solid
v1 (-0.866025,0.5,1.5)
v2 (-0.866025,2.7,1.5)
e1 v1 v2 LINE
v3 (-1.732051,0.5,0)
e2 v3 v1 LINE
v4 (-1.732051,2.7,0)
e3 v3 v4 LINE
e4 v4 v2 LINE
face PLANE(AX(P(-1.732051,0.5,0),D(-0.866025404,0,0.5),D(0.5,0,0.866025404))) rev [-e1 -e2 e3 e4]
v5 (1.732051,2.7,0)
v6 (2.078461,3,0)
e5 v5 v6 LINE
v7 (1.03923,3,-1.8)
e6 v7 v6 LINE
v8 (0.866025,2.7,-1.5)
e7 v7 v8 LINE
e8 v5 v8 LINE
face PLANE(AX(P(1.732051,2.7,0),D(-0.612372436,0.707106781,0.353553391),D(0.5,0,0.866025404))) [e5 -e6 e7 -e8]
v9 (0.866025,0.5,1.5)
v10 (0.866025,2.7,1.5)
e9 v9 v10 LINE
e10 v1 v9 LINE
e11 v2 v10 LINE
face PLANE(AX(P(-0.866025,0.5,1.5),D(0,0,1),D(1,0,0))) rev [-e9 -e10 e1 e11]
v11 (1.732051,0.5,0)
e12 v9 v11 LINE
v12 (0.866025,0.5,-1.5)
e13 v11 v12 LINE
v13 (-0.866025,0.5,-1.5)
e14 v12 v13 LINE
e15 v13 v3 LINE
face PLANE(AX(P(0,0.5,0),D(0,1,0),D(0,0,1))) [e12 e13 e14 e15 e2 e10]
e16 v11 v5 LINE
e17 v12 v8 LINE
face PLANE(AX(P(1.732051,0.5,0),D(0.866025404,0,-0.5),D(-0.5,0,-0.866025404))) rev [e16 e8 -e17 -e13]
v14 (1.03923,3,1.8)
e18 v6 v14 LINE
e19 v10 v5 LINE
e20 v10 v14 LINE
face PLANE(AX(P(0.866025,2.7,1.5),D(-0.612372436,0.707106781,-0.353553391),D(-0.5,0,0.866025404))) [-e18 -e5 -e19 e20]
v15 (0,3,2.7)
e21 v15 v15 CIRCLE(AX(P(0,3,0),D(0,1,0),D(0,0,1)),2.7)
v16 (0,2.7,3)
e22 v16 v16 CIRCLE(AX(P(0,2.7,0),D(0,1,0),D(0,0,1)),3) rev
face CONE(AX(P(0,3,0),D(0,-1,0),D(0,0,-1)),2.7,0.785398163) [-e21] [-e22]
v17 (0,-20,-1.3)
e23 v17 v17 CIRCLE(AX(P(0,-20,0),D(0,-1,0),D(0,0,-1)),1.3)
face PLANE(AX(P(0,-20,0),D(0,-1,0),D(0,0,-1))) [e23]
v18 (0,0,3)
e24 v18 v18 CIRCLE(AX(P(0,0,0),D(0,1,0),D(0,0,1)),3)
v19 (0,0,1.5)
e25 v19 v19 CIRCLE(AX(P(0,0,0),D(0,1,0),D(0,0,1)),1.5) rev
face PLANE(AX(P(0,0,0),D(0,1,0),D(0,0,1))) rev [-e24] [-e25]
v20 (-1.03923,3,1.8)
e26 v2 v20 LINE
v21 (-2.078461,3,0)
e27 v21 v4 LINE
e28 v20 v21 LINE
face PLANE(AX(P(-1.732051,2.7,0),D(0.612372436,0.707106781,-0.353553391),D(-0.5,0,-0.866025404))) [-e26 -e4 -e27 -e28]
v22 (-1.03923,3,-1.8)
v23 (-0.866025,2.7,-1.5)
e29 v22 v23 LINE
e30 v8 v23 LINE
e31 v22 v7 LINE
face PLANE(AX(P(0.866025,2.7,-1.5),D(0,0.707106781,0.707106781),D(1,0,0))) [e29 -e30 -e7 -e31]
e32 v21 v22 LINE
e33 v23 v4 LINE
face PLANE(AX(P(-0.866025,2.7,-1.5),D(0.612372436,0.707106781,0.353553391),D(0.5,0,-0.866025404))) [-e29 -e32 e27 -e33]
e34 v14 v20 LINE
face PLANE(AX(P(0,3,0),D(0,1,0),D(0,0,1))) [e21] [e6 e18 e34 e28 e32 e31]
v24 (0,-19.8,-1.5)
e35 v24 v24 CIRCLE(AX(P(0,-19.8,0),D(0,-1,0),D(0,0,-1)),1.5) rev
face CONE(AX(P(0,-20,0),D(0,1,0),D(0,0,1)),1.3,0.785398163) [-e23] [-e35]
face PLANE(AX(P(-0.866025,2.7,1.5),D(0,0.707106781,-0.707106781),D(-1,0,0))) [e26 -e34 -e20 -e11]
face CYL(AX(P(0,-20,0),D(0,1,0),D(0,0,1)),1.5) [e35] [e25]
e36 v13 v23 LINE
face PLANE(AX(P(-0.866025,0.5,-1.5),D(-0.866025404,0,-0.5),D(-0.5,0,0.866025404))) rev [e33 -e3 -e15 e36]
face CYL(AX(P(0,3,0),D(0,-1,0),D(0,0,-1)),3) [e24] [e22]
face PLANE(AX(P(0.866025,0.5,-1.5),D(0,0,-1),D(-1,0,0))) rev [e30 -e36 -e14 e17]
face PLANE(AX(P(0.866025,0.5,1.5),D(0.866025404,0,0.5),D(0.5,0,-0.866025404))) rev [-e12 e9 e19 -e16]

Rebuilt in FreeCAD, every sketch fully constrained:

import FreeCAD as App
import Part
import Sketcher
Q = App.Units.Quantity


def edges_at(feature, points):
    """Names of the edges that pass closest to the given points."""
    edges = feature.Shape.Edges
    near = lambda p: min(range(len(edges)), key=lambda i: edges[i].distToShape(Part.Vertex(*p))[0])
    return sorted({f"Edge{near(p) + 1}" for p in points})

doc = App.newDocument("Part")
body = doc.addObject("PartDesign::Body", "Body")

# Sketch on XZ plane
sketch1 = body.newObject("Sketcher::SketchObject", "Sketch")
sketch1.AttachmentSupport = (doc.getObject("XZ_Plane"), [""])
sketch1.MapMode = "FlatFace"
sketch1.addGeometry(Part.Circle(App.Vector(0, 0, 0), App.Vector(0, 0, 1), 3), False)
sketch1.addConstraint(Sketcher.Constraint("Coincident", 0, 3, -1, 1))
sketch1.addConstraint(Sketcher.Constraint("Diameter", 0, Q("6 mm")))
pad1 = body.newObject("PartDesign::Pad", "Pad")
pad1.Profile = sketch1
pad1.Length = 3
pad1.Reversed = True
doc.recompute()

chamfer = body.newObject("PartDesign::Chamfer", "Chamfer")
chamfer.Base = (pad1, edges_at(pad1, [(0, 3, -3)]))
chamfer.Size = 0.3

# Sketch on XZ plane
sketch2 = body.newObject("Sketcher::SketchObject", "Sketch001")
sketch2.AttachmentSupport = (doc.getObject("XZ_Plane"), [""])
sketch2.MapMode = "FlatFace"
sketch2.AttachmentOffset = App.Placement(App.Vector(0, 0, -3), App.Rotation())
sketch2.addGeometry(Part.LineSegment(App.Vector(1.7, 0, 0), App.Vector(0.9, -1.5, 0)), False)
sketch2.addGeometry(Part.LineSegment(App.Vector(0.9, -1.5, 0), App.Vector(-0.9, -1.5, 0)), False)
sketch2.addGeometry(Part.LineSegment(App.Vector(-0.9, -1.5, 0), App.Vector(-1.7, 0, 0)), False)
sketch2.addGeometry(Part.LineSegment(App.Vector(-1.7, 0, 0), App.Vector(-0.9, 1.5, 0)), False)
sketch2.addGeometry(Part.LineSegment(App.Vector(-0.9, 1.5, 0), App.Vector(0.9, 1.5, 0)), False)
sketch2.addGeometry(Part.LineSegment(App.Vector(0.9, 1.5, 0), App.Vector(1.7, 0, 0)), False)
sketch2.addConstraint(Sketcher.Constraint("Coincident", 0, 2, 1, 1))
sketch2.addConstraint(Sketcher.Constraint("Coincident", 1, 2, 2, 1))
sketch2.addConstraint(Sketcher.Constraint("Coincident", 2, 2, 3, 1))
sketch2.addConstraint(Sketcher.Constraint("Coincident", 3, 2, 4, 1))
sketch2.addConstraint(Sketcher.Constraint("Coincident", 4, 2, 5, 1))
sketch2.addConstraint(Sketcher.Constraint("Coincident", 5, 2, 0, 1))
sketch2.addConstraint(Sketcher.Constraint("Horizontal", 1))
sketch2.addConstraint(Sketcher.Constraint("Horizontal", 4))
sketch2.addConstraint(Sketcher.Constraint("Symmetric", 0, 2, 3, 2, -1, 1))
sketch2.addConstraint(Sketcher.Constraint("Symmetric", 2, 2, 5, 2, -1, 1))
sketch2.addConstraint(Sketcher.Constraint("PointOnObject", 2, 2, -1))
sketch2.addConstraint(Sketcher.Constraint("Parallel", 2, 5))
sketch2.addConstraint(Sketcher.Constraint("Vertical", 1, 2, 3, 2))
sketch2.addConstraint(Sketcher.Constraint("Angle", 0, Q("-120 deg")))
sketch2.addConstraint(Sketcher.Constraint("DistanceY", 1, 2, 3, 2, Q("3 mm")))
sketch2.addConstraint(Sketcher.Constraint("DistanceX", 1, 2, 1, 1, Q("1.732051 mm")))
pocket1 = body.newObject("PartDesign::Pocket", "Pocket")
pocket1.Profile = sketch2
pocket1.Length = 2.5
pocket1.Reversed = True
doc.recompute()

chamfer2 = body.newObject("PartDesign::Chamfer", "Chamfer001")
chamfer2.Base = (pocket1, edges_at(pocket1, [
    (1.299, 3, 0.75),
    (1.299, 3, -0.75),
    (0, 3, -1.5),
    (-1.299, 3, -0.75),
    (-1.299, 3, 0.75),
    (0, 3, 1.5),
]))
chamfer2.Size = 0.3

# Sketch on XZ plane
sketch3 = body.newObject("Sketcher::SketchObject", "Sketch002")
sketch3.AttachmentSupport = (doc.getObject("XZ_Plane"), [""])
sketch3.MapMode = "FlatFace"
sketch3.addGeometry(Part.Circle(App.Vector(0, 0, 0), App.Vector(0, 0, 1), 1.5), False)
sketch3.addConstraint(Sketcher.Constraint("Coincident", 0, 3, -1, 1))
sketch3.addConstraint(Sketcher.Constraint("Diameter", 0, Q("3 mm")))
pad2 = body.newObject("PartDesign::Pad", "Pad001")
pad2.Profile = sketch3
pad2.Length = 20
doc.recompute()

chamfer3 = body.newObject("PartDesign::Chamfer", "Chamfer002")
chamfer3.Base = (pad2, edges_at(pad2, [(0, -20, -1.5)]))
chamfer3.Size = 0.2

doc.recompute()
